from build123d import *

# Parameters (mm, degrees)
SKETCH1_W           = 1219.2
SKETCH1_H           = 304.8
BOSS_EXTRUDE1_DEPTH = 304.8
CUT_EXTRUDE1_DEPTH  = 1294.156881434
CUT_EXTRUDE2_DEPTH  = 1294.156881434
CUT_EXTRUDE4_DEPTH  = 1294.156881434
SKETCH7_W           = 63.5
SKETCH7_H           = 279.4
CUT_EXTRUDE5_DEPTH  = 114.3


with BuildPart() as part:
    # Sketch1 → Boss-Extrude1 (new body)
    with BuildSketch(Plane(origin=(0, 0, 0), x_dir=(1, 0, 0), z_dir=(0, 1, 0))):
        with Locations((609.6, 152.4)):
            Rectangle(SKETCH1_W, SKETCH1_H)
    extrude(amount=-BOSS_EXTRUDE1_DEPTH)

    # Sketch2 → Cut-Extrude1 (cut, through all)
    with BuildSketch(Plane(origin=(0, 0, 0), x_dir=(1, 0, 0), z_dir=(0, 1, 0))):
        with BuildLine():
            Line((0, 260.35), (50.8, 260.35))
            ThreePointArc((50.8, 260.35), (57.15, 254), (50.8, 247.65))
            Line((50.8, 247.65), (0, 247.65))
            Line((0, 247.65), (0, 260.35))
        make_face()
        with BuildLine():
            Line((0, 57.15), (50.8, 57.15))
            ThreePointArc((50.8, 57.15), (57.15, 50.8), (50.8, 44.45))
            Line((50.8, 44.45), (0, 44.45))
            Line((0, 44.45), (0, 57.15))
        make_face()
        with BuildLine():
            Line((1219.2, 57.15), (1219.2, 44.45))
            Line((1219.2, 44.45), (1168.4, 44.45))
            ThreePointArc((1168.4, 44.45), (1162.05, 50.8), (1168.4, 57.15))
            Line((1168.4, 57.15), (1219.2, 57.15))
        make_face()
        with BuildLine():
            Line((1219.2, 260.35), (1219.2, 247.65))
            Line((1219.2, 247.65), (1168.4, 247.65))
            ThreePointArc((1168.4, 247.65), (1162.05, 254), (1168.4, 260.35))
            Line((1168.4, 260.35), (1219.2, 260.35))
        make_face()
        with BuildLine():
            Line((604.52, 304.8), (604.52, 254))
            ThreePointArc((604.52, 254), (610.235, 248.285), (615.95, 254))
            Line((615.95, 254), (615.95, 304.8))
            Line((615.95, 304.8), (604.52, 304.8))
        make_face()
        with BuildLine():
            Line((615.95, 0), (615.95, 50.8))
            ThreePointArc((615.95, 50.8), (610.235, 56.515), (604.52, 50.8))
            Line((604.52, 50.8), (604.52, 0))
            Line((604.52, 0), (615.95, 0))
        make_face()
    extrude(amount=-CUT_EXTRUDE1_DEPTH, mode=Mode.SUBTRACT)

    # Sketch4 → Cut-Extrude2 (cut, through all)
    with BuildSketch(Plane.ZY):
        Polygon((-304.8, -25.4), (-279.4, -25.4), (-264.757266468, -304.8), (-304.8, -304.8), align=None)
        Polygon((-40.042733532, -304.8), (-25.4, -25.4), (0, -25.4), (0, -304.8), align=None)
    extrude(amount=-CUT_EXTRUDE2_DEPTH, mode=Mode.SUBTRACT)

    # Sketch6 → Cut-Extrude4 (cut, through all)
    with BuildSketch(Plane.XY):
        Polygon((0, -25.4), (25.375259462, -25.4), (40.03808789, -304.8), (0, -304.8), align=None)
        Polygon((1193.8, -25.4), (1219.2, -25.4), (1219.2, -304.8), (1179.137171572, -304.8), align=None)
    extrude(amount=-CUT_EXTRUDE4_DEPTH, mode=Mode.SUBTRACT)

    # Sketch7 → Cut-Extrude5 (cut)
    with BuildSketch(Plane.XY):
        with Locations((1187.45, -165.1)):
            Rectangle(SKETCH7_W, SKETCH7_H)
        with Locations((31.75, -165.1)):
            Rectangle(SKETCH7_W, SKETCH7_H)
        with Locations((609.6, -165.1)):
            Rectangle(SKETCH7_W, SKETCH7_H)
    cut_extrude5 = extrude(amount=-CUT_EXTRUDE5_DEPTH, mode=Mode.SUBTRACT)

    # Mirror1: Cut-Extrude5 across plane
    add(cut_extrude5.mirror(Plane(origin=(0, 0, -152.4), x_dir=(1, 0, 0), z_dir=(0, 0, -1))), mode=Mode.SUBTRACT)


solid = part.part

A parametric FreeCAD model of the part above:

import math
import FreeCAD as App
import Part
import Sketcher
Q = App.Units.Quantity


def add_polygon(sketch, points):
    """Adds a closed chain of lines whose ends are joined by coincident constraints."""
    first, n = sketch.GeometryCount, len(points)
    for a, b in zip(points, points[1:] + points[:1]):
        sketch.addGeometry(Part.LineSegment(App.Vector(*a, 0), App.Vector(*b, 0)), False)
    for i in range(n):
        sketch.addConstraint(Sketcher.Constraint("Coincident", first + i, 2, first + (i + 1) % n, 1))

doc = App.newDocument("Part")
body = doc.addObject("PartDesign::Body", "Body")

sketch1 = body.newObject("Sketcher::SketchObject", "Sketch")
sketch1.AttachmentSupport = (doc.getObject("XZ_Plane"), [""])
sketch1.MapMode = "FlatFace"
add_polygon(sketch1, [(0, -304.8), (0, 0), (1219.2, 0), (1219.2, -304.8)])
sketch1.addConstraint([
    Sketcher.Constraint("Vertical", 0),
    Sketcher.Constraint("Horizontal", 1),
    Sketcher.Constraint("Vertical", 2),
    Sketcher.Constraint("Horizontal", 3),
    Sketcher.Constraint("Coincident", 0, 2, -1, 1),
    Sketcher.Constraint("DistanceX", 1, 1, 1, 2, Q("48 in")),
    Sketcher.Constraint("DistanceY", 0, 1, 0, 2, Q("12 in")),
])
pad1 = body.newObject("PartDesign::Pad", "Pad")
pad1.Profile = sketch1
pad1.Length = Q("12 in")

sketch2 = body.newObject("Sketcher::SketchObject", "Sketch001")
sketch2.AttachmentSupport = (doc.getObject("XZ_Plane"), [""])
sketch2.MapMode = "FlatFace"
sketch2.addGeometry([
    Part.LineSegment(App.Vector(50.8, -260.35, 0), App.Vector(0, -260.35, 0)),
    Part.LineSegment(App.Vector(0, -260.35, 0), App.Vector(0, -247.65, 0)),
    Part.LineSegment(App.Vector(0, -247.65, 0), App.Vector(50.8, -247.65, 0)),
    Part.ArcOfCircle(Part.Circle(App.Vector(50.8, -254, 0), App.Vector(0, 0, 1), 6.35), math.radians(-90), math.radians(90)),
    Part.LineSegment(App.Vector(50.8, -57.15, 0), App.Vector(0, -57.15, 0)),
    Part.LineSegment(App.Vector(0, -57.15, 0), App.Vector(0, -44.45, 0)),
    Part.LineSegment(App.Vector(0, -44.45, 0), App.Vector(50.8, -44.45, 0)),
    Part.ArcOfCircle(Part.Circle(App.Vector(50.8, -50.8, 0), App.Vector(0, 0, 1), 6.35), math.radians(-90), math.radians(90)),
    Part.LineSegment(App.Vector(1219.2, -44.45, 0), App.Vector(1219.2, -57.15, 0)),
    Part.LineSegment(App.Vector(1219.2, -57.15, 0), App.Vector(1168.4, -57.15, 0)),
    Part.ArcOfCircle(Part.Circle(App.Vector(1168.4, -50.8, 0), App.Vector(0, 0, 1), 6.35), math.radians(90), math.radians(270)),
    Part.LineSegment(App.Vector(1168.4, -44.45, 0), App.Vector(1219.2, -44.45, 0)),
    Part.LineSegment(App.Vector(1219.2, -247.65, 0), App.Vector(1219.2, -260.35, 0)),
    Part.LineSegment(App.Vector(1219.2, -260.35, 0), App.Vector(1168.4, -260.35, 0)),
    Part.ArcOfCircle(Part.Circle(App.Vector(1168.4, -254, 0), App.Vector(0, 0, 1), 6.35), math.radians(90), math.radians(270)),
    Part.LineSegment(App.Vector(1168.4, -247.65, 0), App.Vector(1219.2, -247.65, 0)),
    Part.LineSegment(App.Vector(604.52, -304.8, 0), App.Vector(604.52, -254, 0)),
    Part.ArcOfCircle(Part.Circle(App.Vector(610.235, -254, 0), App.Vector(0, 0, 1), 5.715), math.radians(0), math.radians(180)),
    Part.LineSegment(App.Vector(615.95, -254, 0), App.Vector(615.95, -304.8, 0)),
    Part.LineSegment(App.Vector(615.95, -304.8, 0), App.Vector(604.52, -304.8, 0)),
    Part.LineSegment(App.Vector(615.95, 0, 0), App.Vector(615.95, -50.8, 0)),
    Part.ArcOfCircle(Part.Circle(App.Vector(610.235, -50.8, 0), App.Vector(0, 0, 1), 5.715), math.radians(180), math.radians(360)),
    Part.LineSegment(App.Vector(604.52, -50.8, 0), App.Vector(604.52, 0, 0)),
    Part.LineSegment(App.Vector(604.52, 0, 0), App.Vector(615.95, 0, 0)),
], False)
sketch2.addConstraint([
    Sketcher.Constraint("Coincident", 0, 2, 1, 1),
    Sketcher.Constraint("Coincident", 1, 2, 2, 1),
    Sketcher.Constraint("Tangent", 2, 2, 3, 2),
    Sketcher.Constraint("Tangent", 3, 1, 0, 1),
    Sketcher.Constraint("Coincident", 4, 2, 5, 1),
    Sketcher.Constraint("Coincident", 5, 2, 6, 1),
    Sketcher.Constraint("Tangent", 6, 2, 7, 2),
    Sketcher.Constraint("Tangent", 7, 1, 4, 1),
    Sketcher.Constraint("Coincident", 8, 2, 9, 1),
    Sketcher.Constraint("Tangent", 9, 2, 10, 2),
    Sketcher.Constraint("Tangent", 10, 1, 11, 1),
    Sketcher.Constraint("Coincident", 11, 2, 8, 1),
    Sketcher.Constraint("Coincident", 12, 2, 13, 1),
    Sketcher.Constraint("Tangent", 13, 2, 14, 2),
    Sketcher.Constraint("Tangent", 14, 1, 15, 1),
    Sketcher.Constraint("Coincident", 15, 2, 12, 1),
    Sketcher.Constraint("Tangent", 16, 2, 17, 2),
    Sketcher.Constraint("Tangent", 17, 1, 18, 1),
    Sketcher.Constraint("Coincident", 18, 2, 19, 1),
    Sketcher.Constraint("Coincident", 19, 2, 16, 1),
    Sketcher.Constraint("Tangent", 20, 2, 21, 2),
    Sketcher.Constraint("Tangent", 21, 1, 22, 1),
    Sketcher.Constraint("Coincident", 22, 2, 23, 1),
    Sketcher.Constraint("Coincident", 23, 2, 20, 1),
    Sketcher.Constraint("Horizontal", 0),
    Sketcher.Constraint("Vertical", 1),
    Sketcher.Constraint("Horizontal", 2),
    Sketcher.Constraint("Horizontal", 4),
    Sketcher.Constraint("Vertical", 5),
    Sketcher.Constraint("Horizontal", 6),
    Sketcher.Constraint("Vertical", 8),
    Sketcher.Constraint("Horizontal", 9),
    Sketcher.Constraint("Horizontal", 11),
    Sketcher.Constraint("Vertical", 12),
    Sketcher.Constraint("Horizontal", 13),
    Sketcher.Constraint("Horizontal", 15),
    Sketcher.Constraint("Vertical", 16),
    Sketcher.Constraint("Vertical", 18),
    Sketcher.Constraint("Horizontal", 19),
    Sketcher.Constraint("Vertical", 20),
    Sketcher.Constraint("Vertical", 22),
    Sketcher.Constraint("Horizontal", 23),
    Sketcher.Constraint("Equal", 3, 7),
    Sketcher.Constraint("Equal", 7, 10),
    Sketcher.Constraint("Equal", 10, 14),
    Sketcher.Constraint("Equal", 17, 21),
    Sketcher.Constraint("PointOnObject", 0, 2, -2),
    Sketcher.Constraint("PointOnObject", 4, 2, -2),
    Sketcher.Constraint("PointOnObject", 22, 2, -1),
    Sketcher.Constraint("Horizontal", 7, 3, 10, 3),
    Sketcher.Constraint("Horizontal", 3, 3, 14, 3),
    Sketcher.Constraint("Horizontal", 14, 3, 17, 3),
    Sketcher.Constraint("Horizontal", 10, 3, 21, 3),
    Sketcher.Constraint("Vertical", 3, 3, 7, 3),
    Sketcher.Constraint("Vertical", 10, 3, 14, 3),
    Sketcher.Constraint("Vertical", 17, 3, 21, 3),
    Sketcher.Constraint("Vertical", 11, 2, 12, 2),
    Sketcher.Constraint("Equal", 6, 9),
    Sketcher.Constraint("Equal", 15, 16),
    Sketcher.Constraint("Equal", 18, 20),
    Sketcher.Constraint("DistanceX", 0, 2, 0, 1, Q("2 in")),
    Sketcher.Constraint("Radius", 3, Q("0.25 in")),
    Sketcher.Constraint("DistanceY", 3, 3, -1, 1, Q("10 in")),
    Sketcher.Constraint("DistanceX", -1, 1, 10, 3, Q("46 in")),
    Sketcher.Constraint("Radius", 17, Q("0.225 in")),
    Sketcher.Constraint("DistanceX", -1, 1, 16, 2, Q("23.8 in")),
])
pocket1 = body.newObject("PartDesign::Pocket", "Pocket")
pocket1.Profile = sketch2
pocket1.Type = "ThroughAll"
pocket1.Reversed = True

sketch3 = body.newObject("Sketcher::SketchObject", "Sketch002")
sketch3.AttachmentSupport = (doc.getObject("YZ_Plane"), [""])
sketch3.MapMode = "FlatFace"
add_polygon(sketch3, [(-25.4, -279.4), (-25.4, -304.8), (-304.8, -304.8), (-304.8, -264.757266)])
add_polygon(sketch3, [(-25.4, -25.4), (-304.8, -40.042734), (-304.8, 0), (-25.4, 0)])
sketch3.addConstraint([
    Sketcher.Constraint("Vertical", 0),
    Sketcher.Constraint("Horizontal", 1),
    Sketcher.Constraint("Vertical", 2),
    Sketcher.Constraint("Vertical", 5),
    Sketcher.Constraint("Horizontal", 6),
    Sketcher.Constraint("Vertical", 7),
    Sketcher.Constraint("PointOnObject", 5, 2, -1),
    Sketcher.Constraint("Vertical", 2, 2, 4, 2),
    Sketcher.Constraint("Vertical", 3, 2, 6, 2),
    Sketcher.Constraint("Equal", 2, 5),
    Sketcher.Constraint("Equal", 0, 7),
    Sketcher.Constraint("DistanceX", 1, 2, 1, 1, Q("11 in")),
    Sketcher.Constraint("DistanceY", 0, 2, 0, 1, Q("1 in")),
    Sketcher.Constraint("DistanceX", 0, 2, -1, 1, Q("1 in")),
    Sketcher.Constraint("DistanceY", 0, 2, -1, 1, Q("12 in")),
    Sketcher.Constraint("Angle", 3, Q("-3 deg")),
])
pocket2 = body.newObject("PartDesign::Pocket", "Pocket001")
pocket2.Profile = sketch3
pocket2.Type = "ThroughAll"
pocket2.Reversed = True

sketch4 = body.newObject("Sketcher::SketchObject", "Sketch003")
sketch4.AttachmentSupport = (doc.getObject("XY_Plane"), [""])
sketch4.MapMode = "FlatFace"
add_polygon(sketch4, [(25.375259, -25.4), (0, -25.4), (0, -304.8), (40.038088, -304.8)])
add_polygon(sketch4, [(1219.2, -25.4), (1193.8, -25.4), (1179.137172, -304.8), (1219.2, -304.8)])
sketch4.addConstraint([
    Sketcher.Constraint("Horizontal", 0),
    Sketcher.Constraint("Vertical", 1),
    Sketcher.Constraint("Horizontal", 2),
    Sketcher.Constraint("Horizontal", 4),
    Sketcher.Constraint("Horizontal", 6),
    Sketcher.Constraint("Vertical", 7),
    Sketcher.Constraint("PointOnObject", 0, 2, -2),
    Sketcher.Constraint("Horizontal", 3, 2, 4, 2),
    Sketcher.Constraint("Horizontal", 2, 2, 5, 2),
    Sketcher.Constraint("Equal", 3, 5),
    Sketcher.Constraint("DistanceX", 4, 2, 4, 1, Q("1 in")),
    Sketcher.Constraint("DistanceY", 1, 2, 1, 1, Q("11 in")),
    Sketcher.Constraint("DistanceY", 0, 2, -1, 1, Q("1 in")),
    Sketcher.Constraint("DistanceX", -1, 1, 4, 2, Q("47 in")),
    Sketcher.Constraint("DistanceX", 0, 2, 0, 1, Q("25.375259 mm")),
    Sketcher.Constraint("DistanceX", 6, 1, 6, 2, Q("40.062828 mm")),
])
pocket3 = body.newObject("PartDesign::Pocket", "Pocket002")
pocket3.Profile = sketch4
pocket3.Type = "ThroughAll"

sketch5 = body.newObject("Sketcher::SketchObject", "Sketch004")
sketch5.AttachmentSupport = (doc.getObject("XY_Plane"), [""])
sketch5.MapMode = "FlatFace"
add_polygon(sketch5, [(1155.7, -25.4), (1155.7, -304.8), (1219.2, -304.8), (1219.2, -25.4)])
add_polygon(sketch5, [(0, -25.4), (0, -304.8), (63.5, -304.8), (63.5, -25.4)])
add_polygon(sketch5, [(577.85, -25.4), (577.85, -304.8), (641.35, -304.8), (641.35, -25.4)])
sketch5.addConstraint([
    Sketcher.Constraint("Vertical", 0),
    Sketcher.Constraint("Horizontal", 1),
    Sketcher.Constraint("Vertical", 2),
    Sketcher.Constraint("Horizontal", 3),
    Sketcher.Constraint("Vertical", 4),
    Sketcher.Constraint("Horizontal", 5),
    Sketcher.Constraint("Vertical", 6),
    Sketcher.Constraint("Horizontal", 7),
    Sketcher.Constraint("Vertical", 8),
    Sketcher.Constraint("Horizontal", 9),
    Sketcher.Constraint("Vertical", 10),
    Sketcher.Constraint("Horizontal", 11),
    Sketcher.Constraint("PointOnObject", 4, 2, -2),
    Sketcher.Constraint("Horizontal", 1, 2, 4, 2),
    Sketcher.Constraint("Horizontal", 3, 2, 6, 2),
    Sketcher.Constraint("Horizontal", 5, 2, 8, 2),
    Sketcher.Constraint("Horizontal", 7, 2, 10, 2),
    Sketcher.Constraint("Equal", 3, 5),
    Sketcher.Constraint("Equal", 7, 9),
    Sketcher.Constraint("DistanceY", 0, 2, 0, 1, Q("11 in")),
    Sketcher.Constraint("DistanceX", 1, 1, 1, 2, Q("2.5 in")),
    Sketcher.Constraint("DistanceY", 0, 2, -1, 1, Q("12 in")),
    Sketcher.Constraint("DistanceX", -1, 1, 1, 2, Q("48 in")),
    Sketcher.Constraint("DistanceX", -1, 1, 8, 2, Q("22.75 in")),
])
pocket4 = body.newObject("PartDesign::Pocket", "Pocket003")
pocket4.Profile = sketch5
pocket4.Length = Q("4.5 in")
doc.recompute()

datumplane = body.newObject("PartDesign::Plane", "DatumPlane")
datumplane.AttachmentSupport = (doc.getObject("XY_Plane"), [""])
datumplane.MapMode = "FlatFace"
datumplane.AttachmentOffset = App.Placement(App.Vector(0, 0, -6 * 25.4), App.Rotation())
mirrored = body.newObject("PartDesign::Mirrored", "Mirrored")
mirrored.Originals = [pocket4]
mirrored.MirrorPlane = (datumplane, [""])
body.Tip = mirrored

doc.recompute()
